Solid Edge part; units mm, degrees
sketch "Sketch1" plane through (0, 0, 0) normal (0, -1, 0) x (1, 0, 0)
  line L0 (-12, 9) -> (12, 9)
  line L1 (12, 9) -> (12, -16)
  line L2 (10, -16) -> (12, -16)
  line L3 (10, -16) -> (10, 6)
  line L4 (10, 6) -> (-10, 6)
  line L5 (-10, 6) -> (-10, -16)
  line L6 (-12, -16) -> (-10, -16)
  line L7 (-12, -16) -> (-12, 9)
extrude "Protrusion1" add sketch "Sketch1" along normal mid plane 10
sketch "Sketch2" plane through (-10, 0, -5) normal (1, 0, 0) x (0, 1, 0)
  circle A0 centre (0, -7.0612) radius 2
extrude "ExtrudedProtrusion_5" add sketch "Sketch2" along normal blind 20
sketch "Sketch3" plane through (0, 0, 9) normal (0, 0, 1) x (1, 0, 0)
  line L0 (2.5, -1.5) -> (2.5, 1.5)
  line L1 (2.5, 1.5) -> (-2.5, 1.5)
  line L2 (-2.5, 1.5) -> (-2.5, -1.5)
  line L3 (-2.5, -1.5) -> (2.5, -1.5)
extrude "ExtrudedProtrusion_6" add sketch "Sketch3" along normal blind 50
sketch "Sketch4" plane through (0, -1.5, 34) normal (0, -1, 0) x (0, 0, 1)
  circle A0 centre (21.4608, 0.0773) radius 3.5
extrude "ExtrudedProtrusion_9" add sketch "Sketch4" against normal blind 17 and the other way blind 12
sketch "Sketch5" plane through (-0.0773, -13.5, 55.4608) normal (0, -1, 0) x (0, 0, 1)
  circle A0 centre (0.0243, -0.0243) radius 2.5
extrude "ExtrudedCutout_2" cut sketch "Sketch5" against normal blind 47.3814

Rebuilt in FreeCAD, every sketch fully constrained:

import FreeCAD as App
import Part
import Sketcher


def add_polygon(sketch, points):
    """Adds a closed chain of lines whose ends are joined by coincident constraints."""
    first, n = sketch.GeometryCount, len(points)
    for a, b in zip(points, points[1:] + points[:1]):
        sketch.addGeometry(Part.LineSegment(App.Vector(*a, 0), App.Vector(*b, 0)), False)
    for i in range(n):
        sketch.addConstraint(Sketcher.Constraint("Coincident", first + i, 2, first + (i + 1) % n, 1))

doc = App.newDocument("Part")
body = doc.addObject("PartDesign::Body", "Body")

sketch1 = doc.addObject("Sketcher::SketchObject", "Sketch")
body.addObject(sketch1)
sketch1.AttachmentSupport = (doc.XZ_Plane, [""])
sketch1.MapMode = "FlatFace"
add_polygon(sketch1, [(12, 9), (-12, 9), (-12, -16), (-10, -16), (-10, 6), (10, 6), (10, -16), (12, -16)])
sketch1.addConstraint(Sketcher.Constraint("Horizontal", 0))
sketch1.addConstraint(Sketcher.Constraint("Vertical", 1))
sketch1.addConstraint(Sketcher.Constraint("Horizontal", 2))
sketch1.addConstraint(Sketcher.Constraint("Vertical", 3))
sketch1.addConstraint(Sketcher.Constraint("Horizontal", 4))
sketch1.addConstraint(Sketcher.Constraint("Vertical", 5))
sketch1.addConstraint(Sketcher.Constraint("Horizontal", 6))
sketch1.addConstraint(Sketcher.Constraint("Vertical", 7))
sketch1.addConstraint(Sketcher.Constraint("Symmetric", 2, 2, 5, 2, -2))
sketch1.addConstraint(Sketcher.Constraint("Equal", 2, 6))
sketch1.addConstraint(Sketcher.Constraint("DistanceX", 0, 2, 0, 1, 24.0))
sketch1.addConstraint(Sketcher.Constraint("DistanceX", 2, 1, 2, 2, 2.0))
sketch1.addConstraint(Sketcher.Constraint("DistanceY", 1, 2, 1, 1, 25.0))
sketch1.addConstraint(Sketcher.Constraint("DistanceY", 3, 1, 3, 2, 22.0))
sketch1.addConstraint(Sketcher.Constraint("DistanceY", -1, 1, 0, 2, 9.0))
pad1 = doc.addObject("PartDesign::Pad", "Pad")
body.addObject(pad1)
pad1.Profile = sketch1
pad1.Length = 10
pad1.Midplane = True

sketch2 = doc.addObject("Sketcher::SketchObject", "Sketch001")
body.addObject(sketch2)
sketch2.AttachmentSupport = (doc.YZ_Plane, [""])
sketch2.MapMode = "FlatFace"
sketch2.AttachmentOffset = App.Placement(App.Vector(0, 0, -10), App.Rotation())
sketch2.addGeometry(Part.Circle(App.Vector(0, -12.1, 0), App.Vector(0, 0, 1), 2), False)
sketch2.addConstraint(Sketcher.Constraint("PointOnObject", 0, 3, -2))
sketch2.addConstraint(Sketcher.Constraint("Diameter", 0, 4.0))
sketch2.addConstraint(Sketcher.Constraint("DistanceY", 0, 3, -1, 1, 12.0612))
pad2 = doc.addObject("PartDesign::Pad", "Pad001")
body.addObject(pad2)
pad2.Profile = sketch2
pad2.Length = 20

sketch3 = doc.addObject("Sketcher::SketchObject", "Sketch002")
body.addObject(sketch3)
sketch3.AttachmentSupport = (doc.XY_Plane, [""])
sketch3.MapMode = "FlatFace"
sketch3.AttachmentOffset = App.Placement(App.Vector(0, 0, 9), App.Rotation())
add_polygon(sketch3, [(-2.5, -1.5), (2.5, -1.5), (2.5, 1.5), (-2.5, 1.5)])
sketch3.addConstraint(Sketcher.Constraint("Horizontal", 0))
sketch3.addConstraint(Sketcher.Constraint("Vertical", 1))
sketch3.addConstraint(Sketcher.Constraint("Horizontal", 2))
sketch3.addConstraint(Sketcher.Constraint("Vertical", 3))
sketch3.addConstraint(Sketcher.Constraint("Symmetric", 0, 2, 2, 2, -1, 1))
sketch3.addConstraint(Sketcher.Constraint("DistanceX", 0, 1, 0, 2, 5.0))
sketch3.addConstraint(Sketcher.Constraint("DistanceY", 1, 1, 1, 2, 3.0))
pad3 = doc.addObject("PartDesign::Pad", "Pad002")
body.addObject(pad3)
pad3.Profile = sketch3
pad3.Length = 50

sketch4 = doc.addObject("Sketcher::SketchObject", "Sketch003")
body.addObject(sketch4)
sketch4.AttachmentSupport = (doc.XZ_Plane, [""])
sketch4.MapMode = "FlatFace"
sketch4.AttachmentOffset = App.Placement(App.Vector(0, 0, 1.5), App.Rotation())
sketch4.addGeometry(Part.Circle(App.Vector(-0.1, 55.5, 0), App.Vector(0, 0, 1), 3.5), False)
sketch4.addConstraint(Sketcher.Constraint("Diameter", 0, 7.0))
sketch4.addConstraint(Sketcher.Constraint("DistanceX", 0, 3, -1, 1, 0.0773))
sketch4.addConstraint(Sketcher.Constraint("DistanceY", -1, 1, 0, 3, 55.4608))
pad4 = doc.addObject("PartDesign::Pad", "Pad003")
body.addObject(pad4)
pad4.Profile = sketch4
pad4.Type = "TwoLengths"
pad4.Length = 17
pad4.Length2 = 12
pad4.Reversed = True

sketch5 = doc.addObject("Sketcher::SketchObject", "Sketch004")
body.addObject(sketch5)
sketch5.AttachmentSupport = (doc.XZ_Plane, [""])
sketch5.MapMode = "FlatFace"
sketch5.AttachmentOffset = App.Placement(App.Vector(0, 0, 13.5), App.Rotation())
sketch5.addGeometry(Part.Circle(App.Vector(-0.1, 55.5, 0), App.Vector(0, 0, 1), 2.5), False)
sketch5.addConstraint(Sketcher.Constraint("Diameter", 0, 5.0))
sketch5.addConstraint(Sketcher.Constraint("DistanceX", 0, 3, -1, 1, 0.053))
sketch5.addConstraint(Sketcher.Constraint("DistanceY", -1, 1, 0, 3, 55.485))
pocket1 = doc.addObject("PartDesign::Pocket", "Pocket")
body.addObject(pocket1)
pocket1.Profile = sketch5
pocket1.Length = 47.3814

doc.recompute()
